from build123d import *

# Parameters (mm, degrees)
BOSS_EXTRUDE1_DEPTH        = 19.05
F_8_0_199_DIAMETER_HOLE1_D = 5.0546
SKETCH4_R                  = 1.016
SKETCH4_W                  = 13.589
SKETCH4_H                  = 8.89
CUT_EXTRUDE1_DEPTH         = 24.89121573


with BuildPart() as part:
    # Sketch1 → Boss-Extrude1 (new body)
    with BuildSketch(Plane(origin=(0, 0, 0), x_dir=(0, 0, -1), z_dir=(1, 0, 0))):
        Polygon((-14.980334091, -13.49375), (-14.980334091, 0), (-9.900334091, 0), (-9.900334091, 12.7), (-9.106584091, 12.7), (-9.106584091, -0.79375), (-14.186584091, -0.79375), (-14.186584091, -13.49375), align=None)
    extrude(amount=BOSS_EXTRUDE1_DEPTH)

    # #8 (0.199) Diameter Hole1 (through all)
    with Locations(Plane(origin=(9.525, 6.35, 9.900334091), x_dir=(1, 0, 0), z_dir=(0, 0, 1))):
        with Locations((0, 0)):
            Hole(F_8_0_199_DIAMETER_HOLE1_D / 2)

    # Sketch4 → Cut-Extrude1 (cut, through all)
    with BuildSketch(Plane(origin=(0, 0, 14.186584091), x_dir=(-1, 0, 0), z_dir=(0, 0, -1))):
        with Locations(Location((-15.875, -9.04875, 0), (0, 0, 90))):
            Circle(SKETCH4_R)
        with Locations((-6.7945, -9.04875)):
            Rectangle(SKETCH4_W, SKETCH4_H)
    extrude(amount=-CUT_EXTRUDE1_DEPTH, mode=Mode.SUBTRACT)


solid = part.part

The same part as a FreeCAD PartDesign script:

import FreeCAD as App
import Part
import Sketcher
from FreeCAD import Vector
Q = App.Units.Quantity


def add_polygon(sketch, points):
    """Adds a closed chain of lines whose ends are joined by coincident constraints."""
    first, n = sketch.GeometryCount, len(points)
    for a, b in zip(points, points[1:] + points[:1]):
        sketch.addGeometry(Part.LineSegment(App.Vector(*a, 0), App.Vector(*b, 0)), False)
    for i in range(n):
        sketch.addConstraint(Sketcher.Constraint("Coincident", first + i, 2, first + (i + 1) % n, 1))

doc = App.newDocument("Part")
body = doc.addObject("PartDesign::Body", "Body")

sketch1 = body.newObject("Sketcher::SketchObject", "Sketch")
sketch1.AttachmentSupport = (doc.getObject("YZ_Plane"), [""])
sketch1.MapMode = "FlatFace"
add_polygon(sketch1, [(0, 14.980334), (-13.49375, 14.980334), (-13.49375, 14.186584), (-0.79375, 14.186584), (-0.79375, 9.106584), (12.7, 9.106584), (12.7, 9.900334), (0, 9.900334)])
sketch1.addConstraint([
    Sketcher.Constraint("Horizontal", 0),
    Sketcher.Constraint("Vertical", 1),
    Sketcher.Constraint("Horizontal", 2),
    Sketcher.Constraint("Vertical", 3),
    Sketcher.Constraint("Horizontal", 4),
    Sketcher.Constraint("Vertical", 5),
    Sketcher.Constraint("Horizontal", 6),
    Sketcher.Constraint("Vertical", 7),
    Sketcher.Constraint("PointOnObject", 6, 2, -2),
    Sketcher.Constraint("Equal", 0, 4),
    Sketcher.Constraint("Equal", 1, 5),
    Sketcher.Constraint("DistanceX", 2, 1, 2, 2, Q("0.5 in")),
    Sketcher.Constraint("DistanceY", 3, 2, 3, 1, Q("0.2 in")),
    Sketcher.Constraint("DistanceX", 0, 2, 0, 1, Q("0.53125 in")),
    Sketcher.Constraint("DistanceY", 1, 2, 1, 1, Q("0.03125 in")),
    Sketcher.Constraint("DistanceY", -1, 1, 0, 2, Q("14.980334 mm")),
])
pad1 = body.newObject("PartDesign::Pad", "Pad")
pad1.Profile = sketch1
pad1.Length = Q("0.75 in")

sketch2 = body.newObject("Sketcher::SketchObject", "Sketch001")
sketch2.AttachmentSupport = (doc.getObject("XY_Plane"), [""])
sketch2.MapMode = "FlatFace"
sketch2.AttachmentOffset = App.Placement(Vector(0, 0, 9.900334), App.Rotation())
sketch2.addGeometry(Part.Circle(Vector(9.525, 6.35, 0), Vector(0, 0, 1), 2.5273), False)
sketch2.addConstraint([
    Sketcher.Constraint("Diameter", 0, Q("0.199 in")),
    Sketcher.Constraint("DistanceY", -1, 1, 0, 3, Q("0.25 in")),
    Sketcher.Constraint("DistanceX", -1, 1, 0, 3, Q("0.375 in")),
])
doc.recompute()
hole = body.newObject("PartDesign::Hole", "Hole")
hole.Profile = sketch2
hole.ThreadType = "None"
hole.Diameter = Q("0.199 in")
hole.DepthType = "ThroughAll"

sketch3 = body.newObject("Sketcher::SketchObject", "Sketch002")
sketch3.AttachmentSupport = (doc.getObject("XY_Plane"), [""])
sketch3.MapMode = "FlatFace"
sketch3.AttachmentOffset = App.Placement(Vector(0, 0, 14.186584), App.Rotation())
sketch3.addGeometry(Part.Circle(Vector(15.875, -9.04875, 0), Vector(0, 0, 1), 1.016), False)
add_polygon(sketch3, [(13.589, -4.60375), (13.589, -13.49375), (0, -13.49375), (0, -4.60375)])
sketch3.addConstraint([
    Sketcher.Constraint("Vertical", 1),
    Sketcher.Constraint("Horizontal", 2),
    Sketcher.Constraint("Vertical", 3),
    Sketcher.Constraint("Horizontal", 4),
    Sketcher.Constraint("PointOnObject", 2, 2, -2),
    Sketcher.Constraint("Diameter", 0, Q("0.08 in")),
    Sketcher.Constraint("DistanceY", 1, 2, 1, 1, Q("0.35 in")),
    Sketcher.Constraint("DistanceX", 2, 2, 2, 1, Q("0.535 in")),
    Sketcher.Constraint("DistanceX", 1, 2, 0, 3, Q("0.09 in")),
    Sketcher.Constraint("DistanceY", 1, 2, -1, 1, Q("0.53125 in")),
    Sketcher.Constraint("DistanceY", 1, 2, 0, 3, Q("0.175 in")),
])
pocket1 = body.newObject("PartDesign::Pocket", "Pocket")
pocket1.Profile = sketch3
pocket1.Type = "ThroughAll"
pocket1.Reversed = True

doc.recompute()
